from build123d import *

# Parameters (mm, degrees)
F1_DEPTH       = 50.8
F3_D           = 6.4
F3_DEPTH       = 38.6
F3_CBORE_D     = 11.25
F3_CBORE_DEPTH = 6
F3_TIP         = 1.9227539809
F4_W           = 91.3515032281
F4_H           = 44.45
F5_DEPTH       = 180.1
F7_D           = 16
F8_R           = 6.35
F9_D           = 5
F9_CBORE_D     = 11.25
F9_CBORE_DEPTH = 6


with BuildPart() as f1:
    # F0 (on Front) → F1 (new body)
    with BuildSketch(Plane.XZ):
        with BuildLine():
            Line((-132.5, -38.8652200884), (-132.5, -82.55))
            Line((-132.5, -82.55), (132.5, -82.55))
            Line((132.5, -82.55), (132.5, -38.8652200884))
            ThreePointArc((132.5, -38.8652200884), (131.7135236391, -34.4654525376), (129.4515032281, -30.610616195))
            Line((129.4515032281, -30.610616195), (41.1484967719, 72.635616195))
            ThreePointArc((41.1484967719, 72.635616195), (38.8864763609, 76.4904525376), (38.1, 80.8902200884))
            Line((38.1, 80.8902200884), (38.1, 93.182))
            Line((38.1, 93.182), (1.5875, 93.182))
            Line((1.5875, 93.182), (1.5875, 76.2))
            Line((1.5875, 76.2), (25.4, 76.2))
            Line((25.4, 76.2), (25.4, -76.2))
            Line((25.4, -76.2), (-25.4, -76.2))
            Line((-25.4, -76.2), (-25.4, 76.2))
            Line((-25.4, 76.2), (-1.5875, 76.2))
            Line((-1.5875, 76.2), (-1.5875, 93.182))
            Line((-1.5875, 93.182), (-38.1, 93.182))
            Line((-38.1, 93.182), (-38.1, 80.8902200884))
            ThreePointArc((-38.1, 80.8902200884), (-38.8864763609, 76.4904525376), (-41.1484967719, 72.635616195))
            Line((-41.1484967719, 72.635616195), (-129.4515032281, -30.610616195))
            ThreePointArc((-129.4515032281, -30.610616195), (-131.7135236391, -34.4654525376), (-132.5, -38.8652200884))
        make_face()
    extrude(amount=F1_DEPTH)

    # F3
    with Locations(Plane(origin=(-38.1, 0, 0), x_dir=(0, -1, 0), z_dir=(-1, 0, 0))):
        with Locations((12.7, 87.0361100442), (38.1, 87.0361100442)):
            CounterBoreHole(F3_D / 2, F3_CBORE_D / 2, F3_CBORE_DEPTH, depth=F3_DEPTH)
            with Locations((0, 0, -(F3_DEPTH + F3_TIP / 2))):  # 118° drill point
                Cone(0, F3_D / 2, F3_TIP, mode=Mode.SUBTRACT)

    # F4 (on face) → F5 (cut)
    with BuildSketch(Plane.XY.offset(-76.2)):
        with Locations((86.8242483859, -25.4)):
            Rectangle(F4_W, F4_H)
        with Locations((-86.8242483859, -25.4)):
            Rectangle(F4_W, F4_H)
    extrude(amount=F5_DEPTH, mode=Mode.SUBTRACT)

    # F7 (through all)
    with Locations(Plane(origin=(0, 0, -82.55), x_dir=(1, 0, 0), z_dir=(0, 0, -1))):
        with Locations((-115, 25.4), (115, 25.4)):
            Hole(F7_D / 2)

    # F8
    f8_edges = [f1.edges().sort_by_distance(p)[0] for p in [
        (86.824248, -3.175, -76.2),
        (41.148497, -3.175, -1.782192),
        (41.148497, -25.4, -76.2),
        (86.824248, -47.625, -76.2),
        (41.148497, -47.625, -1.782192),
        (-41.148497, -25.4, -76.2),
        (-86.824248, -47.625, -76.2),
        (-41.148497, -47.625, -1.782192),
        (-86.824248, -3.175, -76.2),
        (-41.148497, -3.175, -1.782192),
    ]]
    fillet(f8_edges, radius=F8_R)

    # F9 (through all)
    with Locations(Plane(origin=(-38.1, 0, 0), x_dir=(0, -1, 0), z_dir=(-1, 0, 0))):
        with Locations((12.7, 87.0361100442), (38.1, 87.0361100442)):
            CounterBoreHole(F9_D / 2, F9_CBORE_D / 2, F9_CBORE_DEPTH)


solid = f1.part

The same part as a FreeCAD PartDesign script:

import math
import FreeCAD as App
import Part
import Sketcher
from FreeCAD import Vector
Q = App.Units.Quantity


def edges_at(feature, points):
    """Names of the edges that pass closest to the given points."""
    edges = feature.Shape.Edges
    near = lambda p: min(range(len(edges)), key=lambda i: edges[i].distToShape(Part.Vertex(*p))[0])
    return sorted({f"Edge{near(p) + 1}" for p in points})

doc = App.newDocument("Part")
body = doc.addObject("PartDesign::Body", "Body")

sketch1 = body.newObject("Sketcher::SketchObject", "Sketch")
sketch1.AttachmentSupport = (doc.getObject("XZ_Plane"), [""])
sketch1.MapMode = "FlatFace"
sketch1.addGeometry([
    Part.LineSegment(Vector(-132, -39, 0), Vector(-132, -83, 0)),
    Part.LineSegment(Vector(-132, -83, 0), Vector(132, -83, 0)),
    Part.LineSegment(Vector(132, -83, 0), Vector(132, -39, 0)),
    Part.ArcOfCircle(Part.Circle(Vector(120, -39, 0), Vector(0, 0, 1), 13), math.radians(0), math.radians(41)),
    Part.LineSegment(Vector(129, -31, 0), Vector(41, 73, 0)),
    Part.ArcOfCircle(Part.Circle(Vector(51, 81, 0), Vector(0, 0, 1), 13), math.radians(180), math.radians(221)),
    Part.LineSegment(Vector(38, 81, 0), Vector(38, 93, 0)),
    Part.LineSegment(Vector(38, 93, 0), Vector(2, 93, 0)),
    Part.LineSegment(Vector(2, 93, 0), Vector(2, 76, 0)),
    Part.LineSegment(Vector(2, 76, 0), Vector(25, 76, 0)),
    Part.LineSegment(Vector(25, 76, 0), Vector(25, -76, 0)),
    Part.LineSegment(Vector(25, -76, 0), Vector(-25, -76, 0)),
    Part.LineSegment(Vector(-25, -76, 0), Vector(-25, 76, 0)),
    Part.LineSegment(Vector(-25, 76, 0), Vector(-2, 76, 0)),
    Part.LineSegment(Vector(-2, 76, 0), Vector(-2, 93, 0)),
    Part.LineSegment(Vector(-2, 93, 0), Vector(-38, 93, 0)),
    Part.LineSegment(Vector(-38, 93, 0), Vector(-38, 81, 0)),
    Part.ArcOfCircle(Part.Circle(Vector(-51, 81, 0), Vector(0, 0, 1), 13), math.radians(-41), math.radians(0)),
    Part.LineSegment(Vector(-41, 73, 0), Vector(-129, -31, 0)),
    Part.ArcOfCircle(Part.Circle(Vector(-120, -39, 0), Vector(0, 0, 1), 13), math.radians(139), math.radians(180)),
], False)
sketch1.addConstraint([
    Sketcher.Constraint("Coincident", 0, 2, 1, 1),
    Sketcher.Constraint("Coincident", 1, 2, 2, 1),
    Sketcher.Constraint("Tangent", 2, 2, 3, 1),
    Sketcher.Constraint("Tangent", 3, 2, 4, 1),
    Sketcher.Constraint("Tangent", 4, 2, 5, 2),
    Sketcher.Constraint("Tangent", 5, 1, 6, 1),
    Sketcher.Constraint("Coincident", 6, 2, 7, 1),
    Sketcher.Constraint("Coincident", 7, 2, 8, 1),
    Sketcher.Constraint("Coincident", 8, 2, 9, 1),
    Sketcher.Constraint("Coincident", 9, 2, 10, 1),
    Sketcher.Constraint("Coincident", 10, 2, 11, 1),
    Sketcher.Constraint("Coincident", 11, 2, 12, 1),
    Sketcher.Constraint("Coincident", 12, 2, 13, 1),
    Sketcher.Constraint("Coincident", 13, 2, 14, 1),
    Sketcher.Constraint("Coincident", 14, 2, 15, 1),
    Sketcher.Constraint("Coincident", 15, 2, 16, 1),
    Sketcher.Constraint("Tangent", 16, 2, 17, 2),
    Sketcher.Constraint("Tangent", 17, 1, 18, 1),
    Sketcher.Constraint("Tangent", 18, 2, 19, 1),
    Sketcher.Constraint("Tangent", 19, 2, 0, 1),
    Sketcher.Constraint("Vertical", 0),
    Sketcher.Constraint("Horizontal", 1),
    Sketcher.Constraint("Vertical", 2),
    Sketcher.Constraint("Vertical", 6),
    Sketcher.Constraint("Horizontal", 7),
    Sketcher.Constraint("Vertical", 8),
    Sketcher.Constraint("Horizontal", 9),
    Sketcher.Constraint("Vertical", 10),
    Sketcher.Constraint("Horizontal", 11),
    Sketcher.Constraint("Vertical", 12),
    Sketcher.Constraint("Horizontal", 13),
    Sketcher.Constraint("Vertical", 14),
    Sketcher.Constraint("Horizontal", 15),
    Sketcher.Constraint("Vertical", 16),
    Sketcher.Constraint("Equal", 3, 5),
    Sketcher.Constraint("Equal", 5, 17),
    Sketcher.Constraint("Equal", 17, 19),
    Sketcher.Constraint("Symmetric", 9, 2, 11, 2, -1, 1),
    Sketcher.Constraint("Symmetric", 5, 3, 17, 3, -2),
    Sketcher.Constraint("Symmetric", 3, 3, 19, 3, -2),
    Sketcher.Constraint("Symmetric", 8, 2, 13, 2, -2),
    Sketcher.Constraint("Horizontal", 7, 2, 14, 2),
    Sketcher.Constraint("Radius", 3, Q("0.5 in")),
    Sketcher.Constraint("DistanceX", 11, 2, 11, 1, Q("2 in")),
    Sketcher.Constraint("DistanceY", 10, 2, 10, 1, Q("6 in")),
    Sketcher.Constraint("DistanceX", -1, 1, 5, 3, Q("2 in")),
    Sketcher.Constraint("DistanceX", 7, 2, 7, 1, Q("1.4375 in")),
    Sketcher.Constraint("DistanceY", 0, 2, -1, 1, Q("3.25 in")),
    Sketcher.Constraint("DistanceX", 1, 1, 1, 2, Q("265 mm")),
    Sketcher.Constraint("DistanceY", 8, 2, 8, 1, Q("16.982 mm")),
    Sketcher.Constraint("Distance", 4, Q("135.857298 mm")),
    Sketcher.Constraint("DistanceY", 0, 2, 0, 1, Q("43.68478 mm")),
])
pad1 = body.newObject("PartDesign::Pad", "Pad")
pad1.Profile = sketch1
pad1.Length = Q("2 in")

sketch2 = body.newObject("Sketcher::SketchObject", "Sketch001")
sketch2.AttachmentSupport = (doc.getObject("YZ_Plane"), [""])
sketch2.MapMode = "FlatFace"
sketch2.AttachmentOffset = App.Placement(Vector(0, 0, -1.5 * 25.4), App.Rotation())
sketch2.addGeometry([
    Part.Circle(Vector(-12.7, 87, 0), Vector(0, 0, 1), 3.2),
    Part.Circle(Vector(-38.1, 87, 0), Vector(0, 0, 1), 3.2),
], False)
sketch2.addConstraint([
    Sketcher.Constraint("Equal", 0, 1),
    Sketcher.Constraint("Horizontal", 0, 3, 1, 3),
    Sketcher.Constraint("DistanceX", 1, 3, 0, 3, Q("1 in")),
    Sketcher.Constraint("DistanceX", 0, 3, -1, 1, Q("0.5 in")),
    Sketcher.Constraint("Diameter", 0, Q("6.4 mm")),
    Sketcher.Constraint("DistanceY", -1, 1, 0, 3, Q("87.03611 mm")),
])
doc.recompute()
hole = body.newObject("PartDesign::Hole", "Hole")
hole.Profile = sketch2
hole.ThreadType = "None"
hole.Diameter = 6.4
hole.DepthType = "Dimension"
hole.Depth = 38.6
hole.DrillPoint = "Angled"
hole.DrillPointAngle = 118
hole.HoleCutType = "Counterbore"
hole.HoleCutDiameter = 11.25
hole.HoleCutDepth = 6
hole.Reversed = True

sketch3 = body.newObject("Sketcher::SketchObject", "Sketch002")
sketch3.AttachmentSupport = (doc.getObject("XY_Plane"), [""])
sketch3.MapMode = "FlatFace"
sketch3.AttachmentOffset = App.Placement(Vector(0, 0, -3 * 25.4), App.Rotation())
sketch3.addGeometry([
    Part.LineSegment(Vector(41, -3, 0), Vector(41, -48, 0)),
    Part.LineSegment(Vector(41, -48, 0), Vector(132, -48, 0)),
    Part.LineSegment(Vector(132, -48, 0), Vector(132, -3, 0)),
    Part.LineSegment(Vector(132, -3, 0), Vector(41, -3, 0)),
    Part.LineSegment(Vector(-132, -3, 0), Vector(-132, -48, 0)),
    Part.LineSegment(Vector(-132, -48, 0), Vector(-41, -48, 0)),
    Part.LineSegment(Vector(-41, -48, 0), Vector(-41, -3, 0)),
    Part.LineSegment(Vector(-41, -3, 0), Vector(-132, -3, 0)),
], False)
sketch3.addConstraint([
    Sketcher.Constraint("Coincident", 0, 2, 1, 1),
    Sketcher.Constraint("Coincident", 1, 2, 2, 1),
    Sketcher.Constraint("Coincident", 2, 2, 3, 1),
    Sketcher.Constraint("Coincident", 3, 2, 0, 1),
    Sketcher.Constraint("Coincident", 4, 2, 5, 1),
    Sketcher.Constraint("Coincident", 5, 2, 6, 1),
    Sketcher.Constraint("Coincident", 6, 2, 7, 1),
    Sketcher.Constraint("Coincident", 7, 2, 4, 1),
    Sketcher.Constraint("Vertical", 0),
    Sketcher.Constraint("Horizontal", 1),
    Sketcher.Constraint("Vertical", 2),
    Sketcher.Constraint("Horizontal", 3),
    Sketcher.Constraint("Vertical", 4),
    Sketcher.Constraint("Horizontal", 5),
    Sketcher.Constraint("Vertical", 6),
    Sketcher.Constraint("Horizontal", 7),
    Sketcher.Constraint("Symmetric", 1, 2, 4, 2, -2),
    Sketcher.Constraint("Symmetric", 3, 2, 6, 2, -2),
    Sketcher.Constraint("DistanceY", 0, 2, 0, 1, Q("1.75 in")),
    Sketcher.Constraint("DistanceY", 0, 2, -1, 1, Q("1.875 in")),
    Sketcher.Constraint("DistanceX", -1, 1, 1, 2, Q("132.5 mm")),
    Sketcher.Constraint("DistanceX", 1, 1, 1, 2, Q("91.351503 mm")),
])
pocket1 = body.newObject("PartDesign::Pocket", "Pocket")
pocket1.Profile = sketch3
pocket1.Length = 180.1
pocket1.Reversed = True

sketch4 = body.newObject("Sketcher::SketchObject", "Sketch003")
sketch4.AttachmentSupport = (doc.getObject("XY_Plane"), [""])
sketch4.MapMode = "FlatFace"
sketch4.AttachmentOffset = App.Placement(Vector(0, 0, -3.25 * 25.4), App.Rotation())
sketch4.addGeometry([
    Part.Circle(Vector(-115, -25, 0), Vector(0, 0, 1), 8),
    Part.Circle(Vector(115, -25, 0), Vector(0, 0, 1), 8),
], False)
sketch4.addConstraint([
    Sketcher.Constraint("Equal", 0, 1),
    Sketcher.Constraint("Symmetric", 0, 3, 1, 3, -2),
    Sketcher.Constraint("DistanceY", 0, 3, -1, 1, Q("1 in")),
    Sketcher.Constraint("Diameter", 0, Q("16 mm")),
    Sketcher.Constraint("DistanceX", 0, 3, -1, 1, Q("115 mm")),
])
doc.recompute()
hole2 = body.newObject("PartDesign::Hole", "Hole001")
hole2.Profile = sketch4
hole2.ThreadType = "None"
hole2.Diameter = 16
hole2.DepthType = "ThroughAll"
hole2.Reversed = True
doc.recompute()

fillet = body.newObject("PartDesign::Fillet", "Fillet")
fillet.Base = (hole2, edges_at(hole2, [
    (86.824, -3.175, -76.2),
    (41.148, -3.175, -1.782),
    (41.148, -25.4, -76.2),
    (86.824, -47.625, -76.2),
    (41.148, -47.625, -1.782),
    (-41.148, -25.4, -76.2),
    (-86.824, -47.625, -76.2),
    (-41.148, -47.625, -1.782),
    (-86.824, -3.175, -76.2),
    (-41.148, -3.175, -1.782),
]))
fillet.Radius = Q("0.25 in")

sketch5 = body.newObject("Sketcher::SketchObject", "Sketch004")
sketch5.AttachmentSupport = (doc.getObject("YZ_Plane"), [""])
sketch5.MapMode = "FlatFace"
sketch5.AttachmentOffset = App.Placement(Vector(0, 0, -1.5 * 25.4), App.Rotation())
sketch5.addGeometry([
    Part.Circle(Vector(-12.7, 87, 0), Vector(0, 0, 1), 2.5),
    Part.Circle(Vector(-38.1, 87, 0), Vector(0, 0, 1), 2.5),
], False)
sketch5.addConstraint([
    Sketcher.Constraint("Equal", 0, 1),
    Sketcher.Constraint("Horizontal", 0, 3, 1, 3),
    Sketcher.Constraint("DistanceX", 1, 3, 0, 3, Q("1 in")),
    Sketcher.Constraint("DistanceX", 0, 3, -1, 1, Q("0.5 in")),
    Sketcher.Constraint("Diameter", 0, Q("5 mm")),
    Sketcher.Constraint("DistanceY", -1, 1, 0, 3, Q("87.03611 mm")),
])
doc.recompute()
hole3 = body.newObject("PartDesign::Hole", "Hole002")
hole3.Profile = sketch5
hole3.ThreadType = "None"
hole3.Diameter = 5
hole3.DepthType = "ThroughAll"
hole3.HoleCutType = "Counterbore"
hole3.HoleCutDiameter = 11.25
hole3.HoleCutDepth = 6
hole3.Reversed = True

doc.recompute()
